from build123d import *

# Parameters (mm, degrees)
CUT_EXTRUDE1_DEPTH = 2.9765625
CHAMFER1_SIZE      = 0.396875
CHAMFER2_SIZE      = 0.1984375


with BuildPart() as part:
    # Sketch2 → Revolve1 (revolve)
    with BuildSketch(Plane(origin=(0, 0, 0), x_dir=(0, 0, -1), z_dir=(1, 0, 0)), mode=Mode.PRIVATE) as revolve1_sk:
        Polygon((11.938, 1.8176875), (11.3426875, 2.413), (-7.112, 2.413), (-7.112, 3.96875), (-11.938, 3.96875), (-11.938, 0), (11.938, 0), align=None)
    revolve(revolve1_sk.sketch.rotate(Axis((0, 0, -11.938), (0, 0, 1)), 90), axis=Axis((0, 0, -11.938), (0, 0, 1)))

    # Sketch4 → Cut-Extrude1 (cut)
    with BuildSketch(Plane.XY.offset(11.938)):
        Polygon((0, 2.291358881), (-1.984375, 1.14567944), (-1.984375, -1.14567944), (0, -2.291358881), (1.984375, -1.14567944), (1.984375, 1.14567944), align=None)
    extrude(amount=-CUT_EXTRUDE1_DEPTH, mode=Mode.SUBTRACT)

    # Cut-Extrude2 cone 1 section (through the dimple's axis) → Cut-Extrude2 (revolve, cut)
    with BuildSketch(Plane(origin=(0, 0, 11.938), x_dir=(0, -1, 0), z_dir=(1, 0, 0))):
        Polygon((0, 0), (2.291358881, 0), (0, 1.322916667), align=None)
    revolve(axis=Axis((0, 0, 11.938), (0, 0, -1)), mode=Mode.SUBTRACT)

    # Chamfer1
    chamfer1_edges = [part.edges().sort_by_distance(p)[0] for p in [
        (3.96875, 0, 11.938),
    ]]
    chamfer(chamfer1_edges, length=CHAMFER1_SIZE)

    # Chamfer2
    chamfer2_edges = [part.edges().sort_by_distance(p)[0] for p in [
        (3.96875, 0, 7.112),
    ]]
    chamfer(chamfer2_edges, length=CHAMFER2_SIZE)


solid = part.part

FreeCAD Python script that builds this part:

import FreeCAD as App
import Part
import Sketcher
Q = App.Units.Quantity


def edges_at(feature, points):
    """Names of the edges that pass closest to the given points."""
    edges = feature.Shape.Edges
    near = lambda p: min(range(len(edges)), key=lambda i: edges[i].distToShape(Part.Vertex(*p))[0])
    return sorted({f"Edge{near(p) + 1}" for p in points})

doc = App.newDocument("Part")
body = doc.addObject("PartDesign::Body", "Body")

sketch1 = body.newObject("Sketcher::SketchObject", "Sketch")
sketch1.AttachmentSupport = (doc.getObject("YZ_Plane"), [""])
sketch1.MapMode = "FlatFace"
sketch1.addGeometry([
    Part.LineSegment(App.Vector(1.8, -11.9, 0), App.Vector(2.4, -11.3, 0)),
    Part.LineSegment(App.Vector(2.4, -11.3, 0), App.Vector(2.4, 7.1, 0)),
    Part.LineSegment(App.Vector(2.4, 7.1, 0), App.Vector(4, 7.1, 0)),
    Part.LineSegment(App.Vector(4, 7.1, 0), App.Vector(4, 11.9, 0)),
    Part.LineSegment(App.Vector(4, 11.9, 0), App.Vector(0, 11.9, 0)),
    Part.LineSegment(App.Vector(0, 11.9, 0), App.Vector(0, -11.9, 0)),
    Part.LineSegment(App.Vector(0, -11.9, 0), App.Vector(1.8, -11.9, 0)),
], False)
sketch1.addConstraint([
    Sketcher.Constraint("Coincident", 0, 2, 1, 1),
    Sketcher.Constraint("Coincident", 1, 2, 2, 1),
    Sketcher.Constraint("Coincident", 2, 2, 3, 1),
    Sketcher.Constraint("Coincident", 3, 2, 4, 1),
    Sketcher.Constraint("Coincident", 4, 2, 5, 1),
    Sketcher.Constraint("Coincident", 5, 2, 6, 1),
    Sketcher.Constraint("Coincident", 6, 2, 0, 1),
    Sketcher.Constraint("Vertical", 1),
    Sketcher.Constraint("Horizontal", 2),
    Sketcher.Constraint("Vertical", 3),
    Sketcher.Constraint("Horizontal", 4),
    Sketcher.Constraint("Vertical", 5),
    Sketcher.Constraint("Horizontal", 6),
    Sketcher.Constraint("Symmetric", 4, 2, 5, 2, -1, 1),
    Sketcher.Constraint("Angle", 0, Q("45 deg")),
    Sketcher.Constraint("DistanceY", 3, 1, 3, 2, Q("0.19 in")),
    Sketcher.Constraint("DistanceY", 5, 2, 5, 1, Q("0.94 in")),
    Sketcher.Constraint("DistanceX", 4, 2, 4, 1, Q("0.15625 in")),
    Sketcher.Constraint("DistanceX", -1, 1, 0, 2, Q("0.095 in")),
    Sketcher.Constraint("Distance", 0, 0.841899),
])
revolution = body.newObject("PartDesign::Revolution", "Revolution")
revolution.Profile = sketch1
revolution.ReferenceAxis = (sketch1, ["V_Axis"])
revolution.Angle = 360

sketch2 = body.newObject("Sketcher::SketchObject", "Sketch001")
sketch2.AttachmentSupport = (doc.getObject("XY_Plane"), [""])
sketch2.MapMode = "FlatFace"
sketch2.AttachmentOffset = App.Placement(App.Vector(0, 0, 0.47 * 25.4), App.Rotation())
sketch2.addGeometry([
    Part.LineSegment(App.Vector(0, 2.3, 0), App.Vector(-2, 1.1, 0)),
    Part.LineSegment(App.Vector(-2, 1.1, 0), App.Vector(-2, -1.1, 0)),
    Part.LineSegment(App.Vector(-2, -1.1, 0), App.Vector(0, -2.3, 0)),
    Part.LineSegment(App.Vector(0, -2.3, 0), App.Vector(2, -1.1, 0)),
    Part.LineSegment(App.Vector(2, -1.1, 0), App.Vector(2, 1.1, 0)),
    Part.LineSegment(App.Vector(2, 1.1, 0), App.Vector(0, 2.3, 0)),
], False)
sketch2.addConstraint([
    Sketcher.Constraint("Coincident", 0, 2, 1, 1),
    Sketcher.Constraint("Coincident", 1, 2, 2, 1),
    Sketcher.Constraint("Coincident", 2, 2, 3, 1),
    Sketcher.Constraint("Coincident", 3, 2, 4, 1),
    Sketcher.Constraint("Coincident", 4, 2, 5, 1),
    Sketcher.Constraint("Coincident", 5, 2, 0, 1),
    Sketcher.Constraint("Vertical", 1),
    Sketcher.Constraint("Vertical", 4),
    Sketcher.Constraint("Symmetric", 0, 2, 3, 2, -1, 1),
    Sketcher.Constraint("Symmetric", 2, 2, 5, 2, -1, 1),
    Sketcher.Constraint("PointOnObject", 2, 2, -2),
    Sketcher.Constraint("Parallel", 2, 5),
    Sketcher.Constraint("Horizontal", 1, 2, 3, 2),
    Sketcher.Constraint("Angle", 0, Q("-150 deg")),
    Sketcher.Constraint("DistanceX", 0, 2, -1, 1, Q("0.078125 in")),
    Sketcher.Constraint("DistanceY", 1, 2, 1, 1, 2.291359),
])
pocket1 = body.newObject("PartDesign::Pocket", "Pocket")
pocket1.Profile = sketch2
pocket1.Length = 2.976562

sketch3 = body.newObject("Sketcher::SketchObject", "Sketch002")
sketch3.AttachmentSupport = (doc.getObject("YZ_Plane"), [""])
sketch3.MapMode = "FlatFace"
sketch3.addGeometry([
    Part.LineSegment(App.Vector(0, 11.9, 0), App.Vector(-2.3, 11.9, 0)),
    Part.LineSegment(App.Vector(-2.3, 11.9, 0), App.Vector(0, 10.6, 0)),
    Part.LineSegment(App.Vector(0, 10.6, 0), App.Vector(0, 11.9, 0)),
], False)
sketch3.addConstraint([
    Sketcher.Constraint("Coincident", 0, 2, 1, 1),
    Sketcher.Constraint("Coincident", 1, 2, 2, 1),
    Sketcher.Constraint("Coincident", 2, 2, 0, 1),
    Sketcher.Constraint("Horizontal", 0),
    Sketcher.Constraint("Vertical", 2),
    Sketcher.Constraint("PointOnObject", 1, 2, -2),
    Sketcher.Constraint("Angle", 1, Q("-30 deg")),
    Sketcher.Constraint("DistanceY", -1, 1, 0, 2, Q("0.47 in")),
    Sketcher.Constraint("DistanceX", 0, 2, 0, 1, 2.291359),
])
groove = body.newObject("PartDesign::Groove", "Groove")
groove.Profile = sketch3
groove.ReferenceAxis = (sketch3, ["V_Axis"])
groove.Angle = 360
doc.recompute()

chamfer = body.newObject("PartDesign::Chamfer", "Chamfer")
chamfer.Base = (groove, edges_at(groove, [(3.969, 0, 11.938)]))
chamfer.Size = Q("0.015625 in")
doc.recompute()

chamfer2 = body.newObject("PartDesign::Chamfer", "Chamfer001")
chamfer2.Base = (chamfer, edges_at(chamfer, [(3.969, 0, 7.112)]))
chamfer2.Size = 0.198437

doc.recompute()
